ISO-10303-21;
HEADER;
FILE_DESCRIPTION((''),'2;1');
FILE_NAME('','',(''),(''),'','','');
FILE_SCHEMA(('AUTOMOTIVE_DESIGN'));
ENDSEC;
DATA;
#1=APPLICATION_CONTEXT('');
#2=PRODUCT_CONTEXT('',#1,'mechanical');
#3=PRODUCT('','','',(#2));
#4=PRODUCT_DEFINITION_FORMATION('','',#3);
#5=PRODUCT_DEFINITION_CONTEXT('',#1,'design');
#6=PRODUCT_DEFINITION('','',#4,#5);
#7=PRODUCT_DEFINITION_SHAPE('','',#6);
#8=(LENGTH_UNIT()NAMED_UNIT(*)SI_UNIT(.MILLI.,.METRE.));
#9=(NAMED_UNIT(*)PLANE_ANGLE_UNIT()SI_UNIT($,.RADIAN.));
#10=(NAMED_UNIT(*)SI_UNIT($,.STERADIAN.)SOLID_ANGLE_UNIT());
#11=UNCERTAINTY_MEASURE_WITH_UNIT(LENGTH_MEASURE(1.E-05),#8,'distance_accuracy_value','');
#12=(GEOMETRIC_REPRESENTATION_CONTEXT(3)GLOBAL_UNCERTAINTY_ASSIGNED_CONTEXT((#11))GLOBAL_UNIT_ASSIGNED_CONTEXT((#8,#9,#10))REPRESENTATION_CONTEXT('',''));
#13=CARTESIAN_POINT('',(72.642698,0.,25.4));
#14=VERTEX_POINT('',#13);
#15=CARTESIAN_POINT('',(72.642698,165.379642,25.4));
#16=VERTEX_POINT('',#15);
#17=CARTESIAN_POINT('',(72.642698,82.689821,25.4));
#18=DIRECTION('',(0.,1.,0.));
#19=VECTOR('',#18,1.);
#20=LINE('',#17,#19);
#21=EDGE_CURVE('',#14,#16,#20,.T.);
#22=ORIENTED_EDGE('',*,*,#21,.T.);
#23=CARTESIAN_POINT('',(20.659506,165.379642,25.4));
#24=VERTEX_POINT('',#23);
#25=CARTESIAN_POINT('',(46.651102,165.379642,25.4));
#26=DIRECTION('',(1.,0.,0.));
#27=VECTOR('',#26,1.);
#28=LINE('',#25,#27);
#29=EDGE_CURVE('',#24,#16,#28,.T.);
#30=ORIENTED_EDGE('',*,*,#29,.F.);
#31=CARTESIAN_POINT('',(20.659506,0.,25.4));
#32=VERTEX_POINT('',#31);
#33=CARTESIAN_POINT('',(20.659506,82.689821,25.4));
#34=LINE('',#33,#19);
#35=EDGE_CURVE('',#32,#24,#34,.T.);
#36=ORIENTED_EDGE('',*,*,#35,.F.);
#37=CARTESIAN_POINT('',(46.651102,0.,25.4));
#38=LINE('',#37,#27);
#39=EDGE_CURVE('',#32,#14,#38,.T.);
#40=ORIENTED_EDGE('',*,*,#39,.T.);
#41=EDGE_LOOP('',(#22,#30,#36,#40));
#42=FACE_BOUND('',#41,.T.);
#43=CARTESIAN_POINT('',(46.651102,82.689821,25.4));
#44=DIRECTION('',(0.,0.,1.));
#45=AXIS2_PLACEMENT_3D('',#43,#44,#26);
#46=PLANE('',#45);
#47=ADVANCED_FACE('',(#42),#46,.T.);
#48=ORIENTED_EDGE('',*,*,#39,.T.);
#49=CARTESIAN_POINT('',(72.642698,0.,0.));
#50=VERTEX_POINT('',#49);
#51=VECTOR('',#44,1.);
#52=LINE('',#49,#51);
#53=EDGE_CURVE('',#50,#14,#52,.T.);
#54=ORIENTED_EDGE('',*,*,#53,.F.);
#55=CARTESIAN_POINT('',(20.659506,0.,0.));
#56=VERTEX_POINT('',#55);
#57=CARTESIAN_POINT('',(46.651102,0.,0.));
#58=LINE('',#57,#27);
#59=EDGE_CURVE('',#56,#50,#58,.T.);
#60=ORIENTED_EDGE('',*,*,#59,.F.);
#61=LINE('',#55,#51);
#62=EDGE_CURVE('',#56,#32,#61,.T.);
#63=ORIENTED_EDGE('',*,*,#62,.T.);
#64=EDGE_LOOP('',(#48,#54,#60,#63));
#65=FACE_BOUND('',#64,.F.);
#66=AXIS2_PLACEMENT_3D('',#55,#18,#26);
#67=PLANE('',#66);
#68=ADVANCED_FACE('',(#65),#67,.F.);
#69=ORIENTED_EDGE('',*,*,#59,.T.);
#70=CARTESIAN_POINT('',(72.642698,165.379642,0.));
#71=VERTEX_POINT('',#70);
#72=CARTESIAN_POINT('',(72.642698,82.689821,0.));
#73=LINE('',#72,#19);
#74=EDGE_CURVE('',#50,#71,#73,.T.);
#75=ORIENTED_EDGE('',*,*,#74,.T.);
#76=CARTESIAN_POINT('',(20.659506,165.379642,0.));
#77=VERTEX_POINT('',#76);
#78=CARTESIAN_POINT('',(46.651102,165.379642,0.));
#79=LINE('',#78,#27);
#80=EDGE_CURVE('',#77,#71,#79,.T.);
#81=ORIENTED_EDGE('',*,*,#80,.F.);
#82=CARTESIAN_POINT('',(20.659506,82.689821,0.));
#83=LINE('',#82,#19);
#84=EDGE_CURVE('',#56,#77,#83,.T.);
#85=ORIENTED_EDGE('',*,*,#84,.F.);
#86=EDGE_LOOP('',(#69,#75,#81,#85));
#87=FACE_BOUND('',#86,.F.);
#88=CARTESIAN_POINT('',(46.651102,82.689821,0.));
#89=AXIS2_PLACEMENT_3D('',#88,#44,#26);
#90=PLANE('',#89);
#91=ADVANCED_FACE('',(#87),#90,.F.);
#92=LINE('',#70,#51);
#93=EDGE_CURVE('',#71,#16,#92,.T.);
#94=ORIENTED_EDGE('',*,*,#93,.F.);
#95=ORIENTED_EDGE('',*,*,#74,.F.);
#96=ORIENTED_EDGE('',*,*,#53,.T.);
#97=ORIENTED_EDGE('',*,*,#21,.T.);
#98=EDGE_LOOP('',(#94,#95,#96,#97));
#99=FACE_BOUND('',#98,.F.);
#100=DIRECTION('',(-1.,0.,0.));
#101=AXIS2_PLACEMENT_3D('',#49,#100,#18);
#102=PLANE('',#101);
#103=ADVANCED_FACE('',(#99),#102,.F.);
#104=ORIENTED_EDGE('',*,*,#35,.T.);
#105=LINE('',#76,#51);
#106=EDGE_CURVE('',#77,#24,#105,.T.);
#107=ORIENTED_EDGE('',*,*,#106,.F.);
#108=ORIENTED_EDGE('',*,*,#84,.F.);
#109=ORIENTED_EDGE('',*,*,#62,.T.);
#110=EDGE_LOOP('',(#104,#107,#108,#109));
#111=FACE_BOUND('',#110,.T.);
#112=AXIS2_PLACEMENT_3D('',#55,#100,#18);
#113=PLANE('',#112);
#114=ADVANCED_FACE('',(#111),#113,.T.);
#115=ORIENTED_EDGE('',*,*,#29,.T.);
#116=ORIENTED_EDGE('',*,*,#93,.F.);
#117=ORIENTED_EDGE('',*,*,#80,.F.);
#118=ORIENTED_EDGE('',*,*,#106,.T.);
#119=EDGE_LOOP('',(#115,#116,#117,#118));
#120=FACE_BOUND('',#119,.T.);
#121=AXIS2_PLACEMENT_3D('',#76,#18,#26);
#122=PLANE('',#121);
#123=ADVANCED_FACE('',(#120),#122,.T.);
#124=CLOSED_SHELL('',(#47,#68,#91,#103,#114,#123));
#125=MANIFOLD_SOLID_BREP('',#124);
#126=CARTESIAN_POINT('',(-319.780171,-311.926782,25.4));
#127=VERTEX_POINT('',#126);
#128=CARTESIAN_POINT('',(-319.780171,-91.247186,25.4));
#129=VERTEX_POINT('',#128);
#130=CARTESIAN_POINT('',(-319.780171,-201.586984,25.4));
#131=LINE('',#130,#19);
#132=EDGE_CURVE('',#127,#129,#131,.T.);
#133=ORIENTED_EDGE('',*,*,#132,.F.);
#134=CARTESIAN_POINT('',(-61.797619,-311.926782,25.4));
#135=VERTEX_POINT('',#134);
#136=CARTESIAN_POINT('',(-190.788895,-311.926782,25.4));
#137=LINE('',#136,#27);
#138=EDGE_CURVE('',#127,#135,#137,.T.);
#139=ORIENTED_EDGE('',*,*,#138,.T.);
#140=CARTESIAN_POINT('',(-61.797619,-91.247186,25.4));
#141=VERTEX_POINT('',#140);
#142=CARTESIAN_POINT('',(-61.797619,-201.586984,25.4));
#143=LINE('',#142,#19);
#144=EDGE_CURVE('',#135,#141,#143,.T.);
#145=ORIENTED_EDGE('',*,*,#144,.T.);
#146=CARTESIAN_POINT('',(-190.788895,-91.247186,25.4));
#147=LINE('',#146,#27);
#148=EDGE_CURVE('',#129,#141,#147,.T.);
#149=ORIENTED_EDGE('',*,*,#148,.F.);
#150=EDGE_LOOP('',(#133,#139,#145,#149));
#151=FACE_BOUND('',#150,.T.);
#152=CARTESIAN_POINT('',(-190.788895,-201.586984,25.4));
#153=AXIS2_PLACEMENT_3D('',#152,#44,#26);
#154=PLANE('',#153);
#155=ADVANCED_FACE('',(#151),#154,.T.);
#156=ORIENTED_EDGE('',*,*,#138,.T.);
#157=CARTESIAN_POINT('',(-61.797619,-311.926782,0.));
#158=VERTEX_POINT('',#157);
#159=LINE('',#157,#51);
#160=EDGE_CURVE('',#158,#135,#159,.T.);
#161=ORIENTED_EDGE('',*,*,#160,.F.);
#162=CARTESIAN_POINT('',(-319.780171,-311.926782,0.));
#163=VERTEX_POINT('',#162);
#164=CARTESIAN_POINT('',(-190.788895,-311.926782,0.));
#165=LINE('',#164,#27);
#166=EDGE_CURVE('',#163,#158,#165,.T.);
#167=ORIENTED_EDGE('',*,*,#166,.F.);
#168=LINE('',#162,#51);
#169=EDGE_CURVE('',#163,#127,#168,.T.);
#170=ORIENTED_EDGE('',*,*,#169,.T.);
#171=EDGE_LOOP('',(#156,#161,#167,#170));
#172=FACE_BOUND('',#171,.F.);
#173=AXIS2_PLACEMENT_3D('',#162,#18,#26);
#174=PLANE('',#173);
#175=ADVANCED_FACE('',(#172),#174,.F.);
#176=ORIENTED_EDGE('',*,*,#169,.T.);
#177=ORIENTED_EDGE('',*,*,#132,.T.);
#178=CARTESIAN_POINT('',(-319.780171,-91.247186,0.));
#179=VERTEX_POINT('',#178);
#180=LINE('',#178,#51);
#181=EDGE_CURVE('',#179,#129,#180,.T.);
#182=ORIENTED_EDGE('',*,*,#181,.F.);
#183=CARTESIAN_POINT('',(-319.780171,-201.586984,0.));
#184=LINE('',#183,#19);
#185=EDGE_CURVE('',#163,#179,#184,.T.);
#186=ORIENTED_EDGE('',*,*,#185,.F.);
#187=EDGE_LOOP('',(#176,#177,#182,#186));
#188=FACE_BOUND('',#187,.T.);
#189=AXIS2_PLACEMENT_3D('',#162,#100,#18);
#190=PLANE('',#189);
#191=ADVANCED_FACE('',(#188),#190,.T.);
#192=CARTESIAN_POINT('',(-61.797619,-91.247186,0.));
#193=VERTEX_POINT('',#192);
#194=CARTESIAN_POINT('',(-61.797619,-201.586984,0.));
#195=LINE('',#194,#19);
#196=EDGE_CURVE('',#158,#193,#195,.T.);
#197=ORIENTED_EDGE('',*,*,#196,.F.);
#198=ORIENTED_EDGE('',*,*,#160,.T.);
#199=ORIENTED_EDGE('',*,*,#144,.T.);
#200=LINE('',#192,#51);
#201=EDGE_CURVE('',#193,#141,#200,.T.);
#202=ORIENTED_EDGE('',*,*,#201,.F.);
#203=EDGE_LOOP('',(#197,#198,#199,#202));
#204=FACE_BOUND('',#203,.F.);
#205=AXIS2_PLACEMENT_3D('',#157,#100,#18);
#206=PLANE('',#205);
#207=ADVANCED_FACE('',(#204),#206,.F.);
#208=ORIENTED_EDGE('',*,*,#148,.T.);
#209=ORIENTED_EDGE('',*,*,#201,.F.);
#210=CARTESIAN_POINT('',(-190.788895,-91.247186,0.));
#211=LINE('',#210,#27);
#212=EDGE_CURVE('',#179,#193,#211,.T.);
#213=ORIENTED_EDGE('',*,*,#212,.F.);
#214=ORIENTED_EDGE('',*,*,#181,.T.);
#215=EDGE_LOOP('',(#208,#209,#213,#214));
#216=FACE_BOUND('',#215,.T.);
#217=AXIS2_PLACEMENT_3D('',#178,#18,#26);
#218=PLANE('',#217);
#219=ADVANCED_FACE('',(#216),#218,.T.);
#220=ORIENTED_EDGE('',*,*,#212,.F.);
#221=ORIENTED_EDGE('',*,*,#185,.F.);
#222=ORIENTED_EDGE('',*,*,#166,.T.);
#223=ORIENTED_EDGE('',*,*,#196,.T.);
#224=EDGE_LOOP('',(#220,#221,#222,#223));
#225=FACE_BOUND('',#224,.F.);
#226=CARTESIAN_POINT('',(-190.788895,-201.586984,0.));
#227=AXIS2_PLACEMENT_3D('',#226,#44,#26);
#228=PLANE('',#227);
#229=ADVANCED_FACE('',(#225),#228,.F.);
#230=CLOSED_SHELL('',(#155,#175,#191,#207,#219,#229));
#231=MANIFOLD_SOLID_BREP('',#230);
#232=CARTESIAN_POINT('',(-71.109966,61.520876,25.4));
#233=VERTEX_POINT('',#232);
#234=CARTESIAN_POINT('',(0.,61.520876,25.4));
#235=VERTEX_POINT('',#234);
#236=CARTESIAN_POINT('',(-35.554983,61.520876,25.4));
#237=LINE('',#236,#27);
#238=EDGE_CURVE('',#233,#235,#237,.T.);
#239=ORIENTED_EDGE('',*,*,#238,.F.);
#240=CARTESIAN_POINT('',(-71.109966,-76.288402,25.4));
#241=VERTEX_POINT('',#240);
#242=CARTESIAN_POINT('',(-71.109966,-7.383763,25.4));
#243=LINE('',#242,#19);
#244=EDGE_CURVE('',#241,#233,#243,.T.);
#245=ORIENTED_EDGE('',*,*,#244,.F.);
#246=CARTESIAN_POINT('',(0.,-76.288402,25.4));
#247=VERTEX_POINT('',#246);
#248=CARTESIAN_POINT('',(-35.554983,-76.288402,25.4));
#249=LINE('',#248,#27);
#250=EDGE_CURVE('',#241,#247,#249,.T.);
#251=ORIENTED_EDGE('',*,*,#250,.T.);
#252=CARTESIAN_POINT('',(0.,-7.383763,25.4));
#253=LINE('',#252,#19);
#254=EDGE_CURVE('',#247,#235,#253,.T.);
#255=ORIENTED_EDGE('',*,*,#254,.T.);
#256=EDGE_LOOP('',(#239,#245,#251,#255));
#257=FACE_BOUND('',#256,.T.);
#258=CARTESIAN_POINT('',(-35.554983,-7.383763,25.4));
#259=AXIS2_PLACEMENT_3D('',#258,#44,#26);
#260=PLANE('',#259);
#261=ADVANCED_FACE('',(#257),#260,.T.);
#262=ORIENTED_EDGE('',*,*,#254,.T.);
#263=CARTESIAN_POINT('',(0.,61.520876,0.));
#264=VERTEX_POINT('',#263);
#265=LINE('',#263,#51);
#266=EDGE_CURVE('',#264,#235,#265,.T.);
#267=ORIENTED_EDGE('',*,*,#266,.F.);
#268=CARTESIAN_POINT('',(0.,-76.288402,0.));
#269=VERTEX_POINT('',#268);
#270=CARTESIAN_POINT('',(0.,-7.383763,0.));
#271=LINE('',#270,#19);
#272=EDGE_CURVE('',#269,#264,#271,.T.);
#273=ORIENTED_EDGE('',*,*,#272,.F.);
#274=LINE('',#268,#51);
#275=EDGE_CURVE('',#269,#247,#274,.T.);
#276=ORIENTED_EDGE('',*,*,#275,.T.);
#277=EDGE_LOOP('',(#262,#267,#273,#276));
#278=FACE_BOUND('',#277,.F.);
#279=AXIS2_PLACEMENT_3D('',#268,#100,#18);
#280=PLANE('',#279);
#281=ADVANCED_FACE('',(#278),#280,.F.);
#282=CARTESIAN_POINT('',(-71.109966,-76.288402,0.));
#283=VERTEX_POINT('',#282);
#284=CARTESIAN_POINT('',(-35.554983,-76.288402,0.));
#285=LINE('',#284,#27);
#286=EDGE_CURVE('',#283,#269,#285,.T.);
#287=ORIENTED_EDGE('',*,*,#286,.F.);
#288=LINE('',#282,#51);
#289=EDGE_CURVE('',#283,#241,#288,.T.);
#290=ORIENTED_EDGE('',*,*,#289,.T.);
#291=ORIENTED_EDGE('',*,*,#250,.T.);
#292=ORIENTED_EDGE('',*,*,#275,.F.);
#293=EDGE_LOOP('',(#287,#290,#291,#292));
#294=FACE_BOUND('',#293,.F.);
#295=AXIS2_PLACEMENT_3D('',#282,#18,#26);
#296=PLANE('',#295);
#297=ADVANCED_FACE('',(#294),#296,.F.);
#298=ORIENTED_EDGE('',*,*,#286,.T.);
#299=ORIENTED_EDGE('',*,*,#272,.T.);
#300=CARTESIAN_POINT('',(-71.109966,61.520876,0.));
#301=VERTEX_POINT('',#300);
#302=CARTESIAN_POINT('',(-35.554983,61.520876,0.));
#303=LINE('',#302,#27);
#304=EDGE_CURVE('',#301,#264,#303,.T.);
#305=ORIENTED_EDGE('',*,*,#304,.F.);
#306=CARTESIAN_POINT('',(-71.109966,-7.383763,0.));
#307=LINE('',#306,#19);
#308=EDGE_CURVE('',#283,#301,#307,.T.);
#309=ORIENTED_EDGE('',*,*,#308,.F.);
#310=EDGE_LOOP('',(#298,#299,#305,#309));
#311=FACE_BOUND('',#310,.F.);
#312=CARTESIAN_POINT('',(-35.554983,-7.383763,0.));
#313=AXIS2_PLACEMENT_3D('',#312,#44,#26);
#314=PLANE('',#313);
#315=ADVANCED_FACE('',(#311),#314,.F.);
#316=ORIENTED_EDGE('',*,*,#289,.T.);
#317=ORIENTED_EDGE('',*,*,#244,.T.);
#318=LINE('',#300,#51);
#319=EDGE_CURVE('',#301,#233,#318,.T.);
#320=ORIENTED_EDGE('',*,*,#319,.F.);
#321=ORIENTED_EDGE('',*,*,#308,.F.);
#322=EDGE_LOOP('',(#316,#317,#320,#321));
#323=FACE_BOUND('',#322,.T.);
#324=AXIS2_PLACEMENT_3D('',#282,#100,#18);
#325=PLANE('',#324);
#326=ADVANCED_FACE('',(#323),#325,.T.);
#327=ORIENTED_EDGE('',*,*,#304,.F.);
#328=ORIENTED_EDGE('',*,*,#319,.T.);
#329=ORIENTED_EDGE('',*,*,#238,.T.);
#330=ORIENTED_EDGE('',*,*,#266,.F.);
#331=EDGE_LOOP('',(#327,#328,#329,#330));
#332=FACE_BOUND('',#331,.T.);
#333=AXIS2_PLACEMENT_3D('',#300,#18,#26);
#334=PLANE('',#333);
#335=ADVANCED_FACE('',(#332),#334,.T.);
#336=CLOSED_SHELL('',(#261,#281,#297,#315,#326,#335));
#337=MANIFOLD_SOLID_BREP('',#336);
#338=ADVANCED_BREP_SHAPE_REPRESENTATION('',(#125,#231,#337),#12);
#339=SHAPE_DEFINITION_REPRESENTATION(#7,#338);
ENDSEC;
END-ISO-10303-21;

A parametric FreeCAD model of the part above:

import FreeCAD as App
import Part
import Sketcher
Q = App.Units.Quantity


def add_polygon(sketch, points):
    """Adds a closed chain of lines whose ends are joined by coincident constraints."""
    first, n = sketch.GeometryCount, len(points)
    for a, b in zip(points, points[1:] + points[:1]):
        sketch.addGeometry(Part.LineSegment(App.Vector(*a, 0), App.Vector(*b, 0)), False)
    for i in range(n):
        sketch.addConstraint(Sketcher.Constraint("Coincident", first + i, 2, first + (i + 1) % n, 1))

doc = App.newDocument("Part")
body = doc.addObject("PartDesign::Body", "Body")
body.AllowCompound = True

# Sketch on XY plane
sketch1 = body.newObject("Sketcher::SketchObject", "Sketch")
sketch1.AttachmentSupport = (doc.getObject("XY_Plane"), [""])
sketch1.MapMode = "FlatFace"
add_polygon(sketch1, [(-320, -91), (-320, -312), (-62, -312), (-62, -91)])  # lines 0-3
add_polygon(sketch1, [(-71, 62), (-71, -76), (0, -76), (0, 62)])  # lines 4-7
add_polygon(sketch1, [(21, 165), (21, 0), (73, 0), (73, 165)])  # lines 8-11
sketch1.addConstraint(Sketcher.Constraint("Vertical", 0))
sketch1.addConstraint(Sketcher.Constraint("Horizontal", 1))
sketch1.addConstraint(Sketcher.Constraint("Vertical", 2))
sketch1.addConstraint(Sketcher.Constraint("Horizontal", 3))
sketch1.addConstraint(Sketcher.Constraint("Vertical", 4))
sketch1.addConstraint(Sketcher.Constraint("Horizontal", 5))
sketch1.addConstraint(Sketcher.Constraint("Vertical", 6))
sketch1.addConstraint(Sketcher.Constraint("Horizontal", 7))
sketch1.addConstraint(Sketcher.Constraint("Vertical", 8))
sketch1.addConstraint(Sketcher.Constraint("Horizontal", 9))
sketch1.addConstraint(Sketcher.Constraint("Vertical", 10))
sketch1.addConstraint(Sketcher.Constraint("Horizontal", 11))
sketch1.addConstraint(Sketcher.Constraint("PointOnObject", 5, 2, -2))
sketch1.addConstraint(Sketcher.Constraint("PointOnObject", 8, 2, -1))
sketch1.addConstraint(Sketcher.Constraint("DistanceX", 1, 1, 1, 2, 257.982552))
sketch1.addConstraint(Sketcher.Constraint("DistanceY", 4, 2, -1, 1, 76.288402))
sketch1.addConstraint(Sketcher.Constraint("DistanceX", -1, 1, 9, 2, 72.642698))
sketch1.addConstraint(Sketcher.Constraint("DistanceX", 5, 1, 5, 2, 71.109965))
sketch1.addConstraint(Sketcher.Constraint("DistanceX", 9, 1, 9, 2, 51.983193))
sketch1.addConstraint(Sketcher.Constraint("DistanceY", 0, 2, 0, 1, 220.679596))
sketch1.addConstraint(Sketcher.Constraint("DistanceY", 4, 2, 4, 1, 137.809277))
sketch1.addConstraint(Sketcher.Constraint("DistanceY", 8, 2, 8, 1, 165.379643))
sketch1.addConstraint(Sketcher.Constraint("DistanceX", 0, 2, -1, 1, 319.780171))
sketch1.addConstraint(Sketcher.Constraint("DistanceY", 0, 2, -1, 1, 311.926782))
pad1 = body.newObject("PartDesign::Pad", "Pad")
pad1.Profile = sketch1
pad1.Length = Q("1 in")

doc.recompute()
